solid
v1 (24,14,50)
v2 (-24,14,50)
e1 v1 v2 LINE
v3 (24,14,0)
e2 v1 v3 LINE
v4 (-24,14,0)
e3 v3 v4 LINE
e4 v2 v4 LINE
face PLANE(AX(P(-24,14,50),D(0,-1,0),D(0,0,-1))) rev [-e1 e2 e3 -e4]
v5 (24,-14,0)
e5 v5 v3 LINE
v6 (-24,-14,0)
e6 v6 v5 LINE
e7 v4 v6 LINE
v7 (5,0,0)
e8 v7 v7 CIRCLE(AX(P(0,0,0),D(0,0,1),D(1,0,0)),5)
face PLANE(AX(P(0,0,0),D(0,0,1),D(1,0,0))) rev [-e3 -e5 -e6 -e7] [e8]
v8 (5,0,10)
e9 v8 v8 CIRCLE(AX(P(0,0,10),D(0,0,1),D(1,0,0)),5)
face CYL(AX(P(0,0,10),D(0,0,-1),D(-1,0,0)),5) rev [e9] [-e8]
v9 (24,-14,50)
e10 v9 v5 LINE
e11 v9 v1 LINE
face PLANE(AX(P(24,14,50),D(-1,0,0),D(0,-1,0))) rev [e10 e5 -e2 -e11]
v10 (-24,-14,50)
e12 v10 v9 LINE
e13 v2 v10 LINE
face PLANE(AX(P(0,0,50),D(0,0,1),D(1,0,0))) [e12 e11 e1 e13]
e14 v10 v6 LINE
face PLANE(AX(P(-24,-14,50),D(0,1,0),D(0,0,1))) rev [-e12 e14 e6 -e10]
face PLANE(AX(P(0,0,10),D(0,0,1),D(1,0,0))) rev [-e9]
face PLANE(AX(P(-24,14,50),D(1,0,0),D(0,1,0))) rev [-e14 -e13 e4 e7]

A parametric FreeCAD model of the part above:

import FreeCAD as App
import Part
import Sketcher
Q = App.Units.Quantity

doc = App.newDocument("Part")
body = doc.addObject("PartDesign::Body", "Body")

# Sketch on XY plane
sketch1 = body.newObject("Sketcher::SketchObject", "Sketch")
sketch1.AttachmentSupport = (doc.getObject("XY_Plane"), [""])
sketch1.MapMode = "FlatFace"
sketch1.addGeometry(Part.LineSegment(App.Vector(-24, 14, 0), App.Vector(-24, -14, 0)), False)
sketch1.addGeometry(Part.LineSegment(App.Vector(-24, -14, 0), App.Vector(24, -14, 0)), False)
sketch1.addGeometry(Part.LineSegment(App.Vector(24, -14, 0), App.Vector(24, 14, 0)), False)
sketch1.addGeometry(Part.LineSegment(App.Vector(24, 14, 0), App.Vector(-24, 14, 0)), False)
sketch1.addConstraint(Sketcher.Constraint("Coincident", 0, 2, 1, 1))
sketch1.addConstraint(Sketcher.Constraint("Coincident", 1, 2, 2, 1))
sketch1.addConstraint(Sketcher.Constraint("Coincident", 2, 2, 3, 1))
sketch1.addConstraint(Sketcher.Constraint("Coincident", 3, 2, 0, 1))
sketch1.addConstraint(Sketcher.Constraint("Vertical", 0))
sketch1.addConstraint(Sketcher.Constraint("Horizontal", 1))
sketch1.addConstraint(Sketcher.Constraint("Vertical", 2))
sketch1.addConstraint(Sketcher.Constraint("Horizontal", 3))
sketch1.addConstraint(Sketcher.Constraint("Symmetric", 0, 2, 2, 2, -1, 1))
sketch1.addConstraint(Sketcher.Constraint("DistanceX", 1, 1, 1, 2, Q("48 mm")))
sketch1.addConstraint(Sketcher.Constraint("DistanceY", 0, 2, 0, 1, Q("28 mm")))
pad1 = body.newObject("PartDesign::Pad", "Pad")
pad1.Profile = sketch1
pad1.Length = 50

# Sketch on XY plane
sketch2 = body.newObject("Sketcher::SketchObject", "Sketch001")
sketch2.AttachmentSupport = (doc.getObject("XY_Plane"), [""])
sketch2.MapMode = "FlatFace"
sketch2.addGeometry(Part.Circle(App.Vector(0, 0, 0), App.Vector(0, 0, 1), 5), False)
sketch2.addConstraint(Sketcher.Constraint("Coincident", 0, 3, -1, 1))
sketch2.addConstraint(Sketcher.Constraint("Diameter", 0, Q("10 mm")))
pocket1 = body.newObject("PartDesign::Pocket", "Pocket")
pocket1.Profile = sketch2
pocket1.Length = 10
pocket1.Reversed = True

doc.recompute()
